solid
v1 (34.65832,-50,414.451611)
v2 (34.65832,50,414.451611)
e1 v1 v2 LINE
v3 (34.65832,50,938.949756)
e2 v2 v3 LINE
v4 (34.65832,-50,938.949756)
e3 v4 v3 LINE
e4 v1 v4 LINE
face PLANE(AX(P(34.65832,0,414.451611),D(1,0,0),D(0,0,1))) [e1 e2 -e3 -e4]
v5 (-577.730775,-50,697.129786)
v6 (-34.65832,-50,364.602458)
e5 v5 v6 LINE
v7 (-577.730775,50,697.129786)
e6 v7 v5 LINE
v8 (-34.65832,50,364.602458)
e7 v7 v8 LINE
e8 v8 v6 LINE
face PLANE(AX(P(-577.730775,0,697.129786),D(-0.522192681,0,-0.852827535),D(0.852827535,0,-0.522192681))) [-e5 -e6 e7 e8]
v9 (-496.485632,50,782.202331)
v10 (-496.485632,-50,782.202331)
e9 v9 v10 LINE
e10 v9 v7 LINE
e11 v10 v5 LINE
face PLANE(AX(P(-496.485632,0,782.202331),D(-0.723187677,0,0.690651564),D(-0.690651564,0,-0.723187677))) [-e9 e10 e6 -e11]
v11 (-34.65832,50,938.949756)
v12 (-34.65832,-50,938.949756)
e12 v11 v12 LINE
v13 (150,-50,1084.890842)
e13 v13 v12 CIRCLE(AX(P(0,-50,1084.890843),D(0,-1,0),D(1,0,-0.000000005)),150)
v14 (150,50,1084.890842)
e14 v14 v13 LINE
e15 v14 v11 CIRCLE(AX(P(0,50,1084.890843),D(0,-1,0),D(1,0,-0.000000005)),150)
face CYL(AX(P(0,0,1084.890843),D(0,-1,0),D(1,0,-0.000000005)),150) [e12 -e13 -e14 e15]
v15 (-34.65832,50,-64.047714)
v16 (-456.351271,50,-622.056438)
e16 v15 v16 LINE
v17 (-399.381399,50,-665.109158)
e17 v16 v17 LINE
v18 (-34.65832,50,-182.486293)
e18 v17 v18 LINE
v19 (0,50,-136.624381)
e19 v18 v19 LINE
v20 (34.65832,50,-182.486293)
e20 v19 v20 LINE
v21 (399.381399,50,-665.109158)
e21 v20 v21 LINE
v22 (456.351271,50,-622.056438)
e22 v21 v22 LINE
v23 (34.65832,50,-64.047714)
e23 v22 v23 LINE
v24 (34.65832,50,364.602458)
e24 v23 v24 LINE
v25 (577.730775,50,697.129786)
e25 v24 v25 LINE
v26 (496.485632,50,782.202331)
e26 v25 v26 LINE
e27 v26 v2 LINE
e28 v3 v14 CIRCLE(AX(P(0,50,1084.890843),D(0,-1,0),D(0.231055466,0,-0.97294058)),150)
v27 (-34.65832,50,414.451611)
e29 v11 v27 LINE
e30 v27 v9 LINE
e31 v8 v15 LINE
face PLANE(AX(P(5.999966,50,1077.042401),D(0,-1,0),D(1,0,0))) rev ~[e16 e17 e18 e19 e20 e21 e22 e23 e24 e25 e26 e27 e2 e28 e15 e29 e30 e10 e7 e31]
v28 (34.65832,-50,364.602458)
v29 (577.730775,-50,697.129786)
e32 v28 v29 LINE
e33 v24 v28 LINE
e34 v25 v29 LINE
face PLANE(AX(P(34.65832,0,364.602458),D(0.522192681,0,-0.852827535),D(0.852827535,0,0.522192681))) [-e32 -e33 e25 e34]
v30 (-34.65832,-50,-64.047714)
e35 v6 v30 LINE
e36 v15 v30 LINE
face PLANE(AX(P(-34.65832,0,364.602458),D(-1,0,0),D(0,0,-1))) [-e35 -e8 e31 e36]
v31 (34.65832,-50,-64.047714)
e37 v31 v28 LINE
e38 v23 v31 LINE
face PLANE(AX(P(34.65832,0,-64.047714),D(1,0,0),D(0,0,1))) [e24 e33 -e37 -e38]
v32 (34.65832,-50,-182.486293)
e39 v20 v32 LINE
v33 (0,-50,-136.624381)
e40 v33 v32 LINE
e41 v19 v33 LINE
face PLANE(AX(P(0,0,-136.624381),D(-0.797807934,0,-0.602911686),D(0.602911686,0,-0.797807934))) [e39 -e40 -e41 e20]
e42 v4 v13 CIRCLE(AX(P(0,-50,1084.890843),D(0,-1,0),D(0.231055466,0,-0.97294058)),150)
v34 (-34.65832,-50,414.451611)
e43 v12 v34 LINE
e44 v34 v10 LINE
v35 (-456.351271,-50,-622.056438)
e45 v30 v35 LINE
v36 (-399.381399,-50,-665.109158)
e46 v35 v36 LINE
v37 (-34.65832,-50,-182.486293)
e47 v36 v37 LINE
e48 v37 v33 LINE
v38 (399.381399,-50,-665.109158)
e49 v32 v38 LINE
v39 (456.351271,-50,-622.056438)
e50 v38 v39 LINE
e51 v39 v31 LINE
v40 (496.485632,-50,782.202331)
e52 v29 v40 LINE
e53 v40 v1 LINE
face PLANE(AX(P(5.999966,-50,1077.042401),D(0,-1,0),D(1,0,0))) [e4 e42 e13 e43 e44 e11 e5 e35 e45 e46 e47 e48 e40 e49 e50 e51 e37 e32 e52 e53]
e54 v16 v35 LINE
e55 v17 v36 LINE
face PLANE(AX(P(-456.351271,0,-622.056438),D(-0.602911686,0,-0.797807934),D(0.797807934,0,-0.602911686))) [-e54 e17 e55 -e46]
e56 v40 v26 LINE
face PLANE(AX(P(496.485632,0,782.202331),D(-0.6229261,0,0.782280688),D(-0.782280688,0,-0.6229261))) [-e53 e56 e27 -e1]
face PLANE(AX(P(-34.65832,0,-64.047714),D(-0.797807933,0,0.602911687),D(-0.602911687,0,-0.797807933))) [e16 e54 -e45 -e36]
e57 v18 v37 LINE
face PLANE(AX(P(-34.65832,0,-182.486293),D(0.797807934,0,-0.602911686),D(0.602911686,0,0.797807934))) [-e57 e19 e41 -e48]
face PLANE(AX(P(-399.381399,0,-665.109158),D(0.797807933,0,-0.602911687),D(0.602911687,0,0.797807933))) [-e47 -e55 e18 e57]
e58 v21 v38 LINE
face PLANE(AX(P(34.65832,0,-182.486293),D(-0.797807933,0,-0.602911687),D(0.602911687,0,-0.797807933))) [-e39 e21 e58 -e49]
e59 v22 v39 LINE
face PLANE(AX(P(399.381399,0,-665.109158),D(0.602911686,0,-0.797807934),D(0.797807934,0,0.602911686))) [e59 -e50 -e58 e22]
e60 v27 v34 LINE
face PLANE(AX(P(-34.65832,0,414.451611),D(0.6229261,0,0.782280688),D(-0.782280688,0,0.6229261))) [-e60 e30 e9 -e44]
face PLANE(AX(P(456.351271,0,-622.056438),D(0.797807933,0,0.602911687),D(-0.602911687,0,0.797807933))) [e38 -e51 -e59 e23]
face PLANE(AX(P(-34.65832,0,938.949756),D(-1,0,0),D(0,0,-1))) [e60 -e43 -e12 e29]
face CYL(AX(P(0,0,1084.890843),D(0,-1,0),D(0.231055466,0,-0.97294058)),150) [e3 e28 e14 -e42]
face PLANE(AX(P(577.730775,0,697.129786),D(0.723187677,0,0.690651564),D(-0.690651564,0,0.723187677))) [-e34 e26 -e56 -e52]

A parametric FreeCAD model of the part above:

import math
import FreeCAD as App
import Part
import Sketcher

V = App.Vector

doc = App.newDocument("Part")
body = doc.addObject("PartDesign::Body", "Body")

# Sketch on XZ plane
sketch1 = body.newObject("Sketcher::SketchObject", "Sketch")
sketch1.AttachmentSupport = (doc.getObject("XZ_Plane"), [""])
sketch1.MapMode = "FlatFace"
sketch1.addGeometry([
    Part.ArcOfCircle(Part.Circle(V(0, 1085, 0), V(0, 0, 1), 150), math.radians(-77), math.radians(0)),  # 0
    Part.ArcOfCircle(Part.Circle(V(0, 1085, 0), V(0, 0, 1), 150), math.radians(0), math.radians(257)),  # 1
    Part.LineSegment(V(-35, 939, 0), V(-35, 414, 0)),  # 2
    Part.LineSegment(V(-35, 414, 0), V(-496, 782, 0)),  # 3
    Part.LineSegment(V(-496, 782, 0), V(-578, 697, 0)),  # 4
    Part.LineSegment(V(-578, 697, 0), V(-35, 365, 0)),  # 5
    Part.LineSegment(V(-35, 365, 0), V(-35, -64, 0)),  # 6
    Part.LineSegment(V(-35, -64, 0), V(-456, -622, 0)),  # 7
    Part.LineSegment(V(-456, -622, 0), V(-399, -665, 0)),  # 8
    Part.LineSegment(V(-399, -665, 0), V(-35, -182, 0)),  # 9
    Part.LineSegment(V(-35, -182, 0), V(0, -137, 0)),  # 10
    Part.LineSegment(V(0, -137, 0), V(35, -182, 0)),  # 11
    Part.LineSegment(V(35, -182, 0), V(399, -665, 0)),  # 12
    Part.LineSegment(V(399, -665, 0), V(456, -622, 0)),  # 13
    Part.LineSegment(V(456, -622, 0), V(35, -64, 0)),  # 14
    Part.LineSegment(V(35, -64, 0), V(35, 365, 0)),  # 15
    Part.LineSegment(V(35, 365, 0), V(578, 697, 0)),  # 16
    Part.LineSegment(V(578, 697, 0), V(496, 782, 0)),  # 17
    Part.LineSegment(V(496, 782, 0), V(35, 414, 0)),  # 18
    Part.LineSegment(V(35, 414, 0), V(35, 939, 0)),  # 19
], False)
sketch1.addConstraint([
    Sketcher.Constraint("Tangent", 0, 2, 1, 1),
    Sketcher.Constraint("Coincident", 1, 2, 2, 1),
    Sketcher.Constraint("Coincident", 2, 2, 3, 1),
    Sketcher.Constraint("Coincident", 3, 2, 4, 1),
    Sketcher.Constraint("Coincident", 4, 2, 5, 1),
    Sketcher.Constraint("Coincident", 5, 2, 6, 1),
    Sketcher.Constraint("Coincident", 6, 2, 7, 1),
    Sketcher.Constraint("Coincident", 7, 2, 8, 1),
    Sketcher.Constraint("Coincident", 8, 2, 9, 1),
    Sketcher.Constraint("Coincident", 9, 2, 10, 1),
    Sketcher.Constraint("Coincident", 10, 2, 11, 1),
    Sketcher.Constraint("Coincident", 11, 2, 12, 1),
    Sketcher.Constraint("Coincident", 12, 2, 13, 1),
    Sketcher.Constraint("Coincident", 13, 2, 14, 1),
    Sketcher.Constraint("Coincident", 14, 2, 15, 1),
    Sketcher.Constraint("Coincident", 15, 2, 16, 1),
    Sketcher.Constraint("Coincident", 16, 2, 17, 1),
    Sketcher.Constraint("Coincident", 17, 2, 18, 1),
    Sketcher.Constraint("Coincident", 18, 2, 19, 1),
    Sketcher.Constraint("Coincident", 19, 2, 0, 1),
    Sketcher.Constraint("Vertical", 2),
    Sketcher.Constraint("Vertical", 6),
    Sketcher.Constraint("Vertical", 15),
    Sketcher.Constraint("Vertical", 19),
    Sketcher.Constraint("Equal", 0, 1),
    Sketcher.Constraint("Symmetric", 9, 2, 11, 2, -2),
    Sketcher.Constraint("Symmetric", 8, 2, 12, 2, -2),
    Sketcher.Constraint("Symmetric", 7, 2, 13, 2, -2),
    Sketcher.Constraint("Symmetric", 6, 2, 14, 2, -2),
    Sketcher.Constraint("Symmetric", 4, 2, 16, 2, -2),
    Sketcher.Constraint("Symmetric", 3, 2, 17, 2, -2),
    Sketcher.Constraint("Symmetric", 2, 2, 18, 2, -2),
    Sketcher.Constraint("PointOnObject", 0, 3, -2),
    Sketcher.Constraint("PointOnObject", 10, 2, -2),
    Sketcher.Constraint("Perpendicular", 7, 8),
    Sketcher.Constraint("Perpendicular", 8, 9),
    Sketcher.Constraint("Parallel", 9, 10),
    Sketcher.Constraint("Horizontal", 1, 3, 0, 2),
    Sketcher.Constraint("Horizontal", 5, 2, 15, 2),
    Sketcher.Constraint("Vertical", 2, 2, 5, 2),
    Sketcher.Constraint("Vertical", 6, 2, 9, 2),
    Sketcher.Constraint("Radius", 0, 150.0),
    Sketcher.Constraint("Distance", 4, 117.635501),
    Sketcher.Constraint("DistanceY", 6, 2, 6, 1, 428.650172),
    Sketcher.Constraint("DistanceX", 8, 2, -1, 1, 399.381399),
    Sketcher.Constraint("DistanceY", 6, 2, 4, 2, 761.1775),
    Sketcher.Constraint("Distance", 3, 590.360109),
    Sketcher.Constraint("Distance", 5, 636.79048),
    Sketcher.Constraint("DistanceY", 2, 2, 2, 1, 524.498145),
    Sketcher.Constraint("DistanceY", -1, 1, 0, 2, 1084.890842),
    Sketcher.Constraint("DistanceX", 2, 2, -1, 1, 34.65832),
    Sketcher.Constraint("DistanceX", 3, 2, -1, 1, 496.485632),
    Sketcher.Constraint("DistanceX", 7, 2, -1, 1, 456.351271),
    Sketcher.Constraint("DistanceY", 7, 2, -1, 1, 622.056438),
])
pad1 = body.newObject("PartDesign::Pad", "Pad")
pad1.Profile = sketch1
pad1.Length = 100
pad1.Midplane = True

doc.recompute()
